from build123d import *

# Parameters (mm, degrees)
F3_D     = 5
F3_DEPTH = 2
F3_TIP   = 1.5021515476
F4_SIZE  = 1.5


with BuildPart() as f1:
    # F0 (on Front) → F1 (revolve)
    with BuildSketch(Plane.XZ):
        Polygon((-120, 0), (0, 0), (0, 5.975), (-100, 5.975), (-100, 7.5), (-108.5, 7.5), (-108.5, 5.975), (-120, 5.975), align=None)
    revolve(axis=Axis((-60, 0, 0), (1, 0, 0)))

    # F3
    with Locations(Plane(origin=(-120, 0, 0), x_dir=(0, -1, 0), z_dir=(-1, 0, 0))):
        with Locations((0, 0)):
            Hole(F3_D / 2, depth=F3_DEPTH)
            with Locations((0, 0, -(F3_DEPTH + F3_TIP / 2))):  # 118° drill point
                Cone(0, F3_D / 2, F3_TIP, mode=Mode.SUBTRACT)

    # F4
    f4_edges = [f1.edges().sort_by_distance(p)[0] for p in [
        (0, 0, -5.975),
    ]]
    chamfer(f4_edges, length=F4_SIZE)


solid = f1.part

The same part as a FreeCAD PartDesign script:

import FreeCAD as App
import Part
import Sketcher
from FreeCAD import Vector
Q = App.Units.Quantity


def edges_at(feature, points):
    """Names of the edges that pass closest to the given points."""
    edges = feature.Shape.Edges
    near = lambda p: min(range(len(edges)), key=lambda i: edges[i].distToShape(Part.Vertex(*p))[0])
    return sorted({f"Edge{near(p) + 1}" for p in points})

doc = App.newDocument("Part")
body = doc.addObject("PartDesign::Body", "Body")

# Sketch on XZ plane
sketch1 = body.newObject("Sketcher::SketchObject", "Sketch")
sketch1.AttachmentSupport = (doc.getObject("XZ_Plane"), [""])
sketch1.MapMode = "FlatFace"
sketch1.addGeometry([
    Part.LineSegment(Vector(-120, 0, 0), Vector(0, 0, 0)),  # 0
    Part.LineSegment(Vector(0, 0, 0), Vector(0, 5.975, 0)),  # 1
    Part.LineSegment(Vector(0, 5.975, 0), Vector(-100, 5.975, 0)),  # 2
    Part.LineSegment(Vector(-100, 5.975, 0), Vector(-100, 7.5, 0)),  # 3
    Part.LineSegment(Vector(-100, 7.5, 0), Vector(-108.5, 7.5, 0)),  # 4
    Part.LineSegment(Vector(-108.5, 7.5, 0), Vector(-108.5, 5.975, 0)),  # 5
    Part.LineSegment(Vector(-108.5, 5.975, 0), Vector(-120, 5.975, 0)),  # 6
    Part.LineSegment(Vector(-120, 5.975, 0), Vector(-120, 0, 0)),  # 7
], False)
sketch1.addConstraint([
    Sketcher.Constraint("Coincident", 0, 2, 1, 1),
    Sketcher.Constraint("Coincident", 1, 2, 2, 1),
    Sketcher.Constraint("Coincident", 2, 2, 3, 1),
    Sketcher.Constraint("Coincident", 3, 2, 4, 1),
    Sketcher.Constraint("Coincident", 4, 2, 5, 1),
    Sketcher.Constraint("Coincident", 5, 2, 6, 1),
    Sketcher.Constraint("Coincident", 6, 2, 7, 1),
    Sketcher.Constraint("Coincident", 7, 2, 0, 1),
    Sketcher.Constraint("Horizontal", 0),
    Sketcher.Constraint("Vertical", 1),
    Sketcher.Constraint("Horizontal", 2),
    Sketcher.Constraint("Vertical", 3),
    Sketcher.Constraint("Horizontal", 4),
    Sketcher.Constraint("Vertical", 5),
    Sketcher.Constraint("Horizontal", 6),
    Sketcher.Constraint("Vertical", 7),
    Sketcher.Constraint("Coincident", 0, 2, -1, 1),
    Sketcher.Constraint("Horizontal", 2, 2, 5, 2),
    Sketcher.Constraint("DistanceX", 0, 1, 0, 2, Q("120 mm")),
    Sketcher.Constraint("DistanceX", 2, 2, 2, 1, Q("100 mm")),
    Sketcher.Constraint("DistanceX", 4, 2, 4, 1, Q("8.5 mm")),
    Sketcher.Constraint("DistanceY", -1, 1, 3, 2, Q("7.5 mm")),
    Sketcher.Constraint("DistanceY", 1, 1, 1, 2, Q("5.975 mm")),
])
revolution = body.newObject("PartDesign::Revolution", "Revolution")
revolution.Profile = sketch1
revolution.ReferenceAxis = (sketch1, ["H_Axis"])
revolution.Angle = 360

# Sketch on YZ plane
sketch2 = body.newObject("Sketcher::SketchObject", "Sketch001")
sketch2.AttachmentSupport = (doc.getObject("YZ_Plane"), [""])
sketch2.MapMode = "FlatFace"
sketch2.AttachmentOffset = App.Placement(Vector(0, 0, -120), App.Rotation())
sketch2.addGeometry(Part.Circle(Vector(0, 0, 0), Vector(0, 0, 1), 2.5), False)
sketch2.addConstraint([
    Sketcher.Constraint("Coincident", 0, 3, -1, 1),
    Sketcher.Constraint("Diameter", 0, Q("5 mm")),
])
doc.recompute()
hole = body.newObject("PartDesign::Hole", "Hole")
hole.Profile = sketch2
hole.ThreadType = "None"
hole.Diameter = 5
hole.DepthType = "Dimension"
hole.Depth = 2
hole.DrillPoint = "Angled"
hole.DrillPointAngle = 118
hole.Reversed = True
doc.recompute()

chamfer = body.newObject("PartDesign::Chamfer", "Chamfer")
chamfer.Base = (hole, edges_at(hole, [(0, 0, -5.975)]))
chamfer.Size = 1.5

doc.recompute()
